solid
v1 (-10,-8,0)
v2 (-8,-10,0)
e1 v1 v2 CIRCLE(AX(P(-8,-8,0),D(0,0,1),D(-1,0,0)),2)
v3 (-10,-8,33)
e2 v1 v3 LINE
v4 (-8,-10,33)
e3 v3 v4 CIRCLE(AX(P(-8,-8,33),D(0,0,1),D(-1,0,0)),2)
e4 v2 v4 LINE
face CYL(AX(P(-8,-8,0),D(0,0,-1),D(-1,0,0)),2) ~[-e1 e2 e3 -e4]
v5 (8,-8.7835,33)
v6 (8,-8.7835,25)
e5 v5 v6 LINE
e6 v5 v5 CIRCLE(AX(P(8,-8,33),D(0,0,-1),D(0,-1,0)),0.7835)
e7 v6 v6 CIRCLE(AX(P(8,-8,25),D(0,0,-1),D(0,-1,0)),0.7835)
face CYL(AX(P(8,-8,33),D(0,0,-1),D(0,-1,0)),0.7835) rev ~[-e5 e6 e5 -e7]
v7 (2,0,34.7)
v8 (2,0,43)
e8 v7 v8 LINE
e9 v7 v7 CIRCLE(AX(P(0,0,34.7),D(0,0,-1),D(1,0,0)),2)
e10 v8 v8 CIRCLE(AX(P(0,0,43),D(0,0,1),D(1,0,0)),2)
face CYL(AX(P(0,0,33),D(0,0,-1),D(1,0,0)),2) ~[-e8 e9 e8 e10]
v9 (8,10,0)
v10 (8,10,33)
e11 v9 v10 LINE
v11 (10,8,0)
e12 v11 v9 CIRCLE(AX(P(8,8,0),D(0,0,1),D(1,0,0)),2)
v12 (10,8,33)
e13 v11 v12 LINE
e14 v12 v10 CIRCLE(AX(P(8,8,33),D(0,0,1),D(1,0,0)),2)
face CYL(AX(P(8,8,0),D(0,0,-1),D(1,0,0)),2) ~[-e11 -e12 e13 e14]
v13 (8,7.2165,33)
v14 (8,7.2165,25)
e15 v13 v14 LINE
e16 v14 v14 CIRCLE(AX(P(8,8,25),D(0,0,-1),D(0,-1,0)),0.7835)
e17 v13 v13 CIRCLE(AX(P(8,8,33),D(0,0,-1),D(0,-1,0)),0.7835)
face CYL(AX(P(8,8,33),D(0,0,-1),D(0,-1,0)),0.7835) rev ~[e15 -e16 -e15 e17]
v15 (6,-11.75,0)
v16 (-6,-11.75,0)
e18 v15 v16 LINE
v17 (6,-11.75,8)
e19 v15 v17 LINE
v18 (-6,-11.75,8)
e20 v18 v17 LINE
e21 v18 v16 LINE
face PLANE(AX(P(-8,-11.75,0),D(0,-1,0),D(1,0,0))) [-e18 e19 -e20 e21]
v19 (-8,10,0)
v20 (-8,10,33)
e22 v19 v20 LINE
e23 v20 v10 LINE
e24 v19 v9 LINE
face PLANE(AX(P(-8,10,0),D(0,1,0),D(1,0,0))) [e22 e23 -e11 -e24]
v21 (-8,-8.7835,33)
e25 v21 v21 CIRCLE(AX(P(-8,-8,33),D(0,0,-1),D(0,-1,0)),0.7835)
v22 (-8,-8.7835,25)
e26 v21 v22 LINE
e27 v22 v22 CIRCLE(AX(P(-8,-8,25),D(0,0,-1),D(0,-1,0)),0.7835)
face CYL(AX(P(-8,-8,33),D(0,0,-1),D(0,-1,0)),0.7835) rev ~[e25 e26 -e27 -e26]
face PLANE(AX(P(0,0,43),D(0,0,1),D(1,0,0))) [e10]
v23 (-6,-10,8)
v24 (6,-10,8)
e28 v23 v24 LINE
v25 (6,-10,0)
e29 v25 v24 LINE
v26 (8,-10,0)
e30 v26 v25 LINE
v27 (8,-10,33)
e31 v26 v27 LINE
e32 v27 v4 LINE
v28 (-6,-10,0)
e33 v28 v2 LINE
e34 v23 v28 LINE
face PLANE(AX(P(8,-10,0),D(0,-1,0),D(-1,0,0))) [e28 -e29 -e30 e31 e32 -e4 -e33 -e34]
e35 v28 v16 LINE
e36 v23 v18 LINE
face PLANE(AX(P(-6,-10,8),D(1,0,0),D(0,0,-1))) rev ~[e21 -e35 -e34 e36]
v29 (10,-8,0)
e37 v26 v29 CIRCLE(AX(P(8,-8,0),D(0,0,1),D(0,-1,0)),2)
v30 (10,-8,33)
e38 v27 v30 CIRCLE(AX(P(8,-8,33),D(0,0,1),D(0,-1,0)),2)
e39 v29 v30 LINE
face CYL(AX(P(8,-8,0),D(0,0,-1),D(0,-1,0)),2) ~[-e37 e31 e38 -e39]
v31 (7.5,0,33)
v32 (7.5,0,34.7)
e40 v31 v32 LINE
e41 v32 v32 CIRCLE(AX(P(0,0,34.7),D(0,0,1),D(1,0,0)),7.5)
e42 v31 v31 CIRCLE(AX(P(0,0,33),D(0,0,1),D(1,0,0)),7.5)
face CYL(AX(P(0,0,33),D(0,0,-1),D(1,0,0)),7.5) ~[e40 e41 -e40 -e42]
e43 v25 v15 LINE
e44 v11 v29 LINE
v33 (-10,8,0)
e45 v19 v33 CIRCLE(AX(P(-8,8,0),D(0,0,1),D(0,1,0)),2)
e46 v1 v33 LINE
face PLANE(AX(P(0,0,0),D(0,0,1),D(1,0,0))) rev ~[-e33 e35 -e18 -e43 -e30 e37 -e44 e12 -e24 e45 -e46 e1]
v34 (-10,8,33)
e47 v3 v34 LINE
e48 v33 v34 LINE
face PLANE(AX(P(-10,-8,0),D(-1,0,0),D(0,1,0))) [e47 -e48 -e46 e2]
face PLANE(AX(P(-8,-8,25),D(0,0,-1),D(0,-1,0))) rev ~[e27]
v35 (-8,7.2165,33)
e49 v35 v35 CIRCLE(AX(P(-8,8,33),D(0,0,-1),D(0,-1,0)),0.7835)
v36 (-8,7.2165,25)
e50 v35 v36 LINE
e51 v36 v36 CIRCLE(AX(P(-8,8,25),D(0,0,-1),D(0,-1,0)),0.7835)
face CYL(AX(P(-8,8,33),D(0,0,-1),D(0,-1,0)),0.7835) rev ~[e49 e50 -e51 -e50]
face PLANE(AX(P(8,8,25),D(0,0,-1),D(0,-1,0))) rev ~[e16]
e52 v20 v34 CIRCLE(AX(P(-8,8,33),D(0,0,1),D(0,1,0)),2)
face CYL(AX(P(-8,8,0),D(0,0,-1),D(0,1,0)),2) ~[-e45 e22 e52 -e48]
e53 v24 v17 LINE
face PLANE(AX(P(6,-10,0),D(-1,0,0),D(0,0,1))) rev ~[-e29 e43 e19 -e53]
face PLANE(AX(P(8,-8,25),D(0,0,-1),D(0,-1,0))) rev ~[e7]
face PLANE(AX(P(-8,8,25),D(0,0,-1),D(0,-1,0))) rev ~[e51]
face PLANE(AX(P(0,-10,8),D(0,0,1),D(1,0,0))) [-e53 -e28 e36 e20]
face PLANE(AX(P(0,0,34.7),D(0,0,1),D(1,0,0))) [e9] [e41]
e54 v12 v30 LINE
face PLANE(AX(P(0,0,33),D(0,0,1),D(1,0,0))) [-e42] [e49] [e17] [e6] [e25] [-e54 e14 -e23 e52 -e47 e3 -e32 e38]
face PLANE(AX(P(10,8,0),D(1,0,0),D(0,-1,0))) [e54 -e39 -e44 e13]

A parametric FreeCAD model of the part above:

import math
import FreeCAD as App
import Part
import Sketcher


def add_polygon(sketch, points):
    """Adds a closed chain of lines whose ends are joined by coincident constraints."""
    first, n = sketch.GeometryCount, len(points)
    for a, b in zip(points, points[1:] + points[:1]):
        sketch.addGeometry(Part.LineSegment(App.Vector(*a, 0), App.Vector(*b, 0)), False)
    for i in range(n):
        sketch.addConstraint(Sketcher.Constraint("Coincident", first + i, 2, first + (i + 1) % n, 1))

doc = App.newDocument("Part")
body = doc.addObject("PartDesign::Body", "Body")

# Sketch on XY plane
sketch1 = body.newObject("Sketcher::SketchObject", "Sketch")
sketch1.AttachmentSupport = (doc.getObject("XY_Plane"), [""])
sketch1.MapMode = "FlatFace"
sketch1.addGeometry([
    Part.LineSegment(App.Vector(8, 10, 0), App.Vector(-8, 10, 0)),  # 0
    Part.ArcOfCircle(Part.Circle(App.Vector(-8, 8, 0), App.Vector(0, 0, 1), 2), math.radians(90), math.radians(180)),  # 1
    Part.LineSegment(App.Vector(-10, 8, 0), App.Vector(-10, -8, 0)),  # 2
    Part.ArcOfCircle(Part.Circle(App.Vector(-8, -8, 0), App.Vector(0, 0, 1), 2), math.radians(180), math.radians(270)),  # 3
    Part.LineSegment(App.Vector(-8, -10, 0), App.Vector(8, -10, 0)),  # 4
    Part.ArcOfCircle(Part.Circle(App.Vector(8, -8, 0), App.Vector(0, 0, 1), 2), math.radians(-90), math.radians(0)),  # 5
    Part.LineSegment(App.Vector(10, -8, 0), App.Vector(10, 8, 0)),  # 6
    Part.ArcOfCircle(Part.Circle(App.Vector(8, 8, 0), App.Vector(0, 0, 1), 2), math.radians(0), math.radians(90)),  # 7
], False)
sketch1.addConstraint([
    Sketcher.Constraint("Tangent", 0, 2, 1, 1),
    Sketcher.Constraint("Tangent", 1, 2, 2, 1),
    Sketcher.Constraint("Tangent", 2, 2, 3, 1),
    Sketcher.Constraint("Tangent", 3, 2, 4, 1),
    Sketcher.Constraint("Tangent", 4, 2, 5, 1),
    Sketcher.Constraint("Tangent", 5, 2, 6, 1),
    Sketcher.Constraint("Tangent", 6, 2, 7, 1),
    Sketcher.Constraint("Tangent", 7, 2, 0, 1),
    Sketcher.Constraint("Horizontal", 0),
    Sketcher.Constraint("Vertical", 2),
    Sketcher.Constraint("Horizontal", 4),
    Sketcher.Constraint("Vertical", 6),
    Sketcher.Constraint("Equal", 1, 3),
    Sketcher.Constraint("Equal", 3, 5),
    Sketcher.Constraint("Equal", 5, 7),
    Sketcher.Constraint("Symmetric", 1, 3, 5, 3, -1, 1),
    Sketcher.Constraint("Equal", 4, 2),
    Sketcher.Constraint("DistanceX", 0, 2, 0, 1, 16.0),
    Sketcher.Constraint("Radius", 1, 2.0),
])
pad1 = body.newObject("PartDesign::Pad", "Pad")
pad1.Profile = sketch1
pad1.Length = 33

# Sketch on XY plane
sketch2 = body.newObject("Sketcher::SketchObject", "Sketch001")
sketch2.AttachmentSupport = (doc.getObject("XY_Plane"), [""])
sketch2.MapMode = "FlatFace"
sketch2.AttachmentOffset = App.Placement(App.Vector(0, 0, 33), App.Rotation())
sketch2.addGeometry(Part.Circle(App.Vector(0, 0, 0), App.Vector(0, 0, 1), 8), False)
sketch2.addConstraint([
    Sketcher.Constraint("Coincident", 0, 3, -1, 1),
    Sketcher.Constraint("Diameter", 0, 15.0),
])
pad2 = body.newObject("PartDesign::Pad", "Pad001")
pad2.Profile = sketch2
pad2.Length = 1.7

# Sketch on XY plane
sketch3 = body.newObject("Sketcher::SketchObject", "Sketch002")
sketch3.AttachmentSupport = (doc.getObject("XY_Plane"), [""])
sketch3.MapMode = "FlatFace"
sketch3.AttachmentOffset = App.Placement(App.Vector(0, 0, 33), App.Rotation())
sketch3.addGeometry(Part.Circle(App.Vector(0, 0, 0), App.Vector(0, 0, 1), 2), False)
sketch3.addConstraint([
    Sketcher.Constraint("Coincident", 0, 3, -1, 1),
    Sketcher.Constraint("Diameter", 0, 4.0),
])
pad3 = body.newObject("PartDesign::Pad", "Pad002")
pad3.Profile = sketch3
pad3.Length = 10

# Sketch on XZ plane
sketch4 = body.newObject("Sketcher::SketchObject", "Sketch003")
sketch4.AttachmentSupport = (doc.getObject("XZ_Plane"), [""])
sketch4.MapMode = "FlatFace"
sketch4.AttachmentOffset = App.Placement(App.Vector(0, 0, 10), App.Rotation())
add_polygon(sketch4, [(-6, 0), (6, 0), (6, 8), (-6, 8)])  # lines 0-3
sketch4.addConstraint([
    Sketcher.Constraint("Horizontal", 0),
    Sketcher.Constraint("Vertical", 1),
    Sketcher.Constraint("Horizontal", 2),
    Sketcher.Constraint("Vertical", 3),
    Sketcher.Constraint("Symmetric", 0, 2, 3, 2, -1, 1),
    Sketcher.Constraint("DistanceX", 0, 1, 0, 2, 12.0),
    Sketcher.Constraint("DistanceY", 1, 1, 1, 2, 8.0),
])
pad4 = body.newObject("PartDesign::Pad", "Pad003")
pad4.Profile = sketch4
pad4.Length = 1.75

# Sketch on XY plane
sketch5 = body.newObject("Sketcher::SketchObject", "Sketch004")
sketch5.AttachmentSupport = (doc.getObject("XY_Plane"), [""])
sketch5.MapMode = "FlatFace"
sketch5.AttachmentOffset = App.Placement(App.Vector(0, 0, 33), App.Rotation())
sketch5.addGeometry([
    Part.Circle(App.Vector(-8, 8, 0), App.Vector(0, 0, 1), 0.8),
    Part.Circle(App.Vector(8, 8, 0), App.Vector(0, 0, 1), 0.8),
    Part.Circle(App.Vector(8, -8, 0), App.Vector(0, 0, 1), 0.8),
    Part.Circle(App.Vector(-8, -8, 0), App.Vector(0, 0, 1), 0.8),
], False)
sketch5.addConstraint([
    Sketcher.Constraint("Equal", 0, 1),
    Sketcher.Constraint("Equal", 1, 2),
    Sketcher.Constraint("Equal", 2, 3),
    Sketcher.Constraint("Symmetric", 0, 3, 2, 3, -1, 1),
    Sketcher.Constraint("Symmetric", 1, 3, 3, 3, -1, 1),
    Sketcher.Constraint("Symmetric", 0, 3, 1, 3, -2),
    Sketcher.Constraint("Diameter", 0, 1.567),
    Sketcher.Constraint("DistanceX", 0, 3, -1, 1, 8.0),
    Sketcher.Constraint("DistanceY", -1, 1, 0, 3, 8.0),
])
doc.recompute()
hole = body.newObject("PartDesign::Hole", "Hole")
hole.Profile = sketch5
hole.ThreadType = "None"
hole.Diameter = 1.567
hole.DepthType = "Dimension"
hole.Depth = 8
hole.DrillPoint = "Flat"

doc.recompute()
